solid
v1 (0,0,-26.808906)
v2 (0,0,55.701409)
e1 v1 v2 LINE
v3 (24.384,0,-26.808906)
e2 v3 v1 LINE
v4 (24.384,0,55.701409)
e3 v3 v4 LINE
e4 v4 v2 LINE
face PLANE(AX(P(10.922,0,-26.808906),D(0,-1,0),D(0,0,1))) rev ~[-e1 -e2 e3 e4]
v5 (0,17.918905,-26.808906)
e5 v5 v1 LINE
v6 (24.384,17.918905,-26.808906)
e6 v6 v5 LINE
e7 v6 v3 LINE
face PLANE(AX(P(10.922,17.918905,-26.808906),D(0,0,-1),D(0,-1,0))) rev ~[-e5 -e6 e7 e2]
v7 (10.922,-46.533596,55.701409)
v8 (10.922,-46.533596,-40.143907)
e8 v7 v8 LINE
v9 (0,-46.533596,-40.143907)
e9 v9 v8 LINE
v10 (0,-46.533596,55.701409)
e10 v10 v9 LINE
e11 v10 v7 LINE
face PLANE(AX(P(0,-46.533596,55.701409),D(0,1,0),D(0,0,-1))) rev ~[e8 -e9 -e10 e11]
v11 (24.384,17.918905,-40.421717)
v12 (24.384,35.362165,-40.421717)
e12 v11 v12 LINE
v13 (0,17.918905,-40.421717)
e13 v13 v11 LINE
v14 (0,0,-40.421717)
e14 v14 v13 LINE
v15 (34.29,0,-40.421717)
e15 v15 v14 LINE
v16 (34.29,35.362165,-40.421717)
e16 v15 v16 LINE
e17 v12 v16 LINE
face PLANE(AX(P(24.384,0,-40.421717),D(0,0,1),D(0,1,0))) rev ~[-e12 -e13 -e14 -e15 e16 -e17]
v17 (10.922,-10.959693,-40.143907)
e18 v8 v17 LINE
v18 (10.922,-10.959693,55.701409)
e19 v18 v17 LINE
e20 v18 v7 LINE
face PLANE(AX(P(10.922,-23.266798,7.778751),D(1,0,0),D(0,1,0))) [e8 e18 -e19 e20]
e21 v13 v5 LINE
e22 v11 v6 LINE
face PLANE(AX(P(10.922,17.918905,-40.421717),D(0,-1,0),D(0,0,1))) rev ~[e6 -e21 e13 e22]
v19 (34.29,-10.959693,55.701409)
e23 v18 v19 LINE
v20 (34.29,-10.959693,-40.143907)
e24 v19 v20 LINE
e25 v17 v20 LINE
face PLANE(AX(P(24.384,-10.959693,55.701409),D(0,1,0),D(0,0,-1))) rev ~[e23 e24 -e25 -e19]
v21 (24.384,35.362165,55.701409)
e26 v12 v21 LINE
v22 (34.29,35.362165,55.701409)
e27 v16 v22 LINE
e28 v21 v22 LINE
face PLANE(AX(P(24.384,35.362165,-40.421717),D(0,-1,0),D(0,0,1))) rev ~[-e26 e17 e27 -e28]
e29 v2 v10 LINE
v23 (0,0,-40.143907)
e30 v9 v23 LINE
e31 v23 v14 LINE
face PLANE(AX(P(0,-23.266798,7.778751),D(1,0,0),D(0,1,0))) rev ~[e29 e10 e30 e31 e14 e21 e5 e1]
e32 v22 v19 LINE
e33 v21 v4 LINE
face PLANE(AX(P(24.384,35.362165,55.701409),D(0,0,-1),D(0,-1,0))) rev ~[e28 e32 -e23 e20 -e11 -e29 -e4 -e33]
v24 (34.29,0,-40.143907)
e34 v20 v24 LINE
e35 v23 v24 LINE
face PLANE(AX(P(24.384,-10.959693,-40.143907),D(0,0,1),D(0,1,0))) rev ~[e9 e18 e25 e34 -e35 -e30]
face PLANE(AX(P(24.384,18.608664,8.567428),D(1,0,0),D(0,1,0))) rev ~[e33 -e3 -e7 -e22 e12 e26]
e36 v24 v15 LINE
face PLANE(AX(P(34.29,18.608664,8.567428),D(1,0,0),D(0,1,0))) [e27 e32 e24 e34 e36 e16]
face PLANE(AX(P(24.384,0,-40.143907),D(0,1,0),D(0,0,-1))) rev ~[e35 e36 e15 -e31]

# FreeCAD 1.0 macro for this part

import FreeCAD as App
import Part
import Sketcher

V = App.Vector
Q = App.Units.Quantity


def add_polygon(sketch, points):
    """Adds a closed chain of lines whose ends are joined by coincident constraints."""
    first, n = sketch.GeometryCount, len(points)
    for a, b in zip(points, points[1:] + points[:1]):
        sketch.addGeometry(Part.LineSegment(App.Vector(*a, 0), App.Vector(*b, 0)), False)
    for i in range(n):
        sketch.addConstraint(Sketcher.Constraint("Coincident", first + i, 2, first + (i + 1) % n, 1))

doc = App.newDocument("Part")
body = doc.addObject("PartDesign::Body", "Body")

sketch1 = body.newObject("Sketcher::SketchObject", "Sketch")
sketch1.AttachmentSupport = (doc.getObject("YZ_Plane"), [""])
sketch1.MapMode = "FlatFace"
add_polygon(sketch1, [(0, 55.7), (-46.53, 55.7), (-46.53, -40.14), (0, -40.14), (0, -40.42), (17.92, -40.42), (17.92, -26.81), (0, -26.81)])
sketch1.addConstraint([
    Sketcher.Constraint("Horizontal", 0),
    Sketcher.Constraint("Vertical", 1),
    Sketcher.Constraint("Horizontal", 2),
    Sketcher.Constraint("Vertical", 3),
    Sketcher.Constraint("Horizontal", 4),
    Sketcher.Constraint("Vertical", 5),
    Sketcher.Constraint("Horizontal", 6),
    Sketcher.Constraint("Vertical", 7),
    Sketcher.Constraint("PointOnObject", 2, 2, -2),
    Sketcher.Constraint("PointOnObject", 6, 2, -2),
    Sketcher.Constraint("DistanceY", 2, 2, 5, 2, Q("0.525 in")),
    Sketcher.Constraint("DistanceX", 1, 2, 4, 2, Q("2.5375 in")),
    Sketcher.Constraint("DistanceY", 3, 2, 3, 1, Q("0.27781 mm")),
    Sketcher.Constraint("DistanceX", 0, 2, 0, 1, Q("46.533596 mm")),
    Sketcher.Constraint("DistanceY", 1, 2, 1, 1, Q("95.845316 mm")),
    Sketcher.Constraint("DistanceY", -1, 1, 0, 2, Q("55.701409 mm")),
])
pad1 = body.newObject("PartDesign::Pad", "Pad")
pad1.Profile = sketch1
pad1.Length = Q("0.43 in")

sketch2 = body.newObject("Sketcher::SketchObject", "Sketch001")
sketch2.AttachmentSupport = (doc.getObject("YZ_Plane"), [""])
sketch2.MapMode = "FlatFace"
sketch2.AttachmentOffset = App.Placement(V(0, 0, 0.43 * 25.4), App.Rotation())
add_polygon(sketch2, [(0, 55.7), (-10.96, 55.7), (-10.96, -40.14), (0, -40.14), (0, -40.42), (17.92, -40.42), (17.92, -26.81), (0, -26.81)])
sketch2.addConstraint([
    Sketcher.Constraint("Horizontal", 0),
    Sketcher.Constraint("Vertical", 1),
    Sketcher.Constraint("Horizontal", 2),
    Sketcher.Constraint("Vertical", 3),
    Sketcher.Constraint("Horizontal", 4),
    Sketcher.Constraint("Vertical", 5),
    Sketcher.Constraint("Horizontal", 6),
    Sketcher.Constraint("Vertical", 7),
    Sketcher.Constraint("PointOnObject", 2, 2, -2),
    Sketcher.Constraint("PointOnObject", 6, 2, -2),
    Sketcher.Constraint("DistanceY", 2, 2, 5, 2, Q("0.525 in")),
    Sketcher.Constraint("DistanceY", 3, 2, 3, 1, Q("0.27781 mm")),
    Sketcher.Constraint("DistanceX", 0, 2, 0, 1, Q("10.959693 mm")),
    Sketcher.Constraint("DistanceX", 4, 1, 4, 2, Q("17.918905 mm")),
    Sketcher.Constraint("DistanceY", 1, 2, 1, 1, Q("95.845316 mm")),
    Sketcher.Constraint("DistanceY", -1, 1, 0, 2, Q("55.701409 mm")),
])
pad2 = body.newObject("PartDesign::Pad", "Pad001")
pad2.Profile = sketch2
pad2.Length = Q("0.53 in")

sketch3 = body.newObject("Sketcher::SketchObject", "Sketch002")
sketch3.AttachmentSupport = (doc.getObject("YZ_Plane"), [""])
sketch3.MapMode = "FlatFace"
sketch3.AttachmentOffset = App.Placement(V(0, 0, 0.96 * 25.4), App.Rotation())
add_polygon(sketch3, [(35.36, 55.7), (-10.96, 55.7), (-10.96, -40.14), (0, -40.14), (0, -40.42), (35.36, -40.42)])
sketch3.addConstraint([
    Sketcher.Constraint("Horizontal", 0),
    Sketcher.Constraint("Vertical", 1),
    Sketcher.Constraint("Horizontal", 2),
    Sketcher.Constraint("Vertical", 3),
    Sketcher.Constraint("Horizontal", 4),
    Sketcher.Constraint("Vertical", 5),
    Sketcher.Constraint("PointOnObject", 2, 2, -2),
    Sketcher.Constraint("DistanceY", 3, 2, 3, 1, Q("0.27781 mm")),
    Sketcher.Constraint("DistanceX", 0, 2, 0, 1, Q("46.321858 mm")),
    Sketcher.Constraint("DistanceX", 2, 1, 2, 2, Q("10.959693 mm")),
    Sketcher.Constraint("DistanceY", 1, 2, 1, 1, Q("95.845316 mm")),
    Sketcher.Constraint("DistanceY", -1, 1, 0, 2, Q("55.701409 mm")),
])
pad3 = body.newObject("PartDesign::Pad", "Pad002")
pad3.Profile = sketch3
pad3.Length = Q("0.39 in")

doc.recompute()
